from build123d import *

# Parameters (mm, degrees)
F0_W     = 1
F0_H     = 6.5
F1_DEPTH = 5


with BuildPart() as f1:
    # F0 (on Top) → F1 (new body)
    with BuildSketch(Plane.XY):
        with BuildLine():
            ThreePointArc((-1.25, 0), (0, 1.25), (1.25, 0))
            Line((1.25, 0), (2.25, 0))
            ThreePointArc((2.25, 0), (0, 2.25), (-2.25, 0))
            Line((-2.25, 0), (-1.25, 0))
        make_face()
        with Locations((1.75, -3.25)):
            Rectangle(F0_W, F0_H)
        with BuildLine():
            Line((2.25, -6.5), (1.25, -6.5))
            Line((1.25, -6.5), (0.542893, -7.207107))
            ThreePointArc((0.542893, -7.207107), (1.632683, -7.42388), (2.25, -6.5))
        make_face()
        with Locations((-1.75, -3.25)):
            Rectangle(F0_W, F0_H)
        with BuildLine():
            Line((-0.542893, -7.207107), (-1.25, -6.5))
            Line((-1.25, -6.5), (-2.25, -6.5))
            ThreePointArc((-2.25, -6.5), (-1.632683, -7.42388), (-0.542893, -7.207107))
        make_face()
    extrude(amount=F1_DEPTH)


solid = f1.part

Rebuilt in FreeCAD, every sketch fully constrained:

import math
import FreeCAD as App
import Part
import Sketcher
Q = App.Units.Quantity

doc = App.newDocument("Part")
body = doc.addObject("PartDesign::Body", "Body")

# Sketch on XY plane
sketch1 = body.newObject("Sketcher::SketchObject", "Sketch")
sketch1.AttachmentSupport = (doc.getObject("XY_Plane"), [""])
sketch1.MapMode = "FlatFace"
sketch1.addGeometry([
    Part.ArcOfCircle(Part.Circle(App.Vector(0, 0, 0), App.Vector(0, 0, 1), 1.2), math.radians(0), math.radians(180)),  # 0
    Part.LineSegment(App.Vector(1.2, 0, 0), App.Vector(1.2, -6.5, 0)),  # 1
    Part.LineSegment(App.Vector(1.2, -6.5, 0), App.Vector(0.5, -7.2, 0)),  # 2
    Part.ArcOfCircle(Part.Circle(App.Vector(1.2, -6.5, 0), App.Vector(0, 0, 1), 1), math.radians(-135), math.radians(0)),  # 3
    Part.LineSegment(App.Vector(2.2, -6.5, 0), App.Vector(2.2, 0, 0)),  # 4
    Part.ArcOfCircle(Part.Circle(App.Vector(0, 0, 0), App.Vector(0, 0, 1), 2.2), math.radians(0), math.radians(180)),  # 5
    Part.LineSegment(App.Vector(-2.2, 0, 0), App.Vector(-2.2, -6.5, 0)),  # 6
    Part.ArcOfCircle(Part.Circle(App.Vector(-1.2, -6.5, 0), App.Vector(0, 0, 1), 1), math.radians(180), math.radians(315)),  # 7
    Part.LineSegment(App.Vector(-0.5, -7.2, 0), App.Vector(-1.2, -6.5, 0)),  # 8
    Part.LineSegment(App.Vector(-1.2, -6.5, 0), App.Vector(-1.2, 0, 0)),  # 9
], False)
sketch1.addConstraint([
    Sketcher.Constraint("Tangent", 0, 1, 1, 1),
    Sketcher.Constraint("Coincident", 1, 2, 2, 1),
    Sketcher.Constraint("Coincident", 2, 2, 3, 1),
    Sketcher.Constraint("Tangent", 3, 2, 4, 1),
    Sketcher.Constraint("Tangent", 4, 2, 5, 1),
    Sketcher.Constraint("Tangent", 5, 2, 6, 1),
    Sketcher.Constraint("Tangent", 6, 2, 7, 1),
    Sketcher.Constraint("Coincident", 7, 2, 8, 1),
    Sketcher.Constraint("Coincident", 8, 2, 9, 1),
    Sketcher.Constraint("Tangent", 9, 2, 0, 2),
    Sketcher.Constraint("Vertical", 1),
    Sketcher.Constraint("Vertical", 4),
    Sketcher.Constraint("Vertical", 6),
    Sketcher.Constraint("Vertical", 9),
    Sketcher.Constraint("Coincident", 0, 3, -1, 1),
    Sketcher.Constraint("Coincident", 5, 3, -1, 1),
    Sketcher.Constraint("Coincident", 1, 2, 3, 3),
    Sketcher.Constraint("Coincident", 8, 2, 7, 3),
    Sketcher.Constraint("Symmetric", 2, 2, 7, 2, -2),
    Sketcher.Constraint("Perpendicular", 2, 8),
    Sketcher.Constraint("Radius", 3, Q("1 mm")),
    Sketcher.Constraint("Radius", 0, Q("1.25 mm")),
    Sketcher.Constraint("DistanceY", 1, 2, 1, 1, Q("6.5 mm")),
])
pad1 = body.newObject("PartDesign::Pad", "Pad")
pad1.Profile = sketch1
pad1.Length = 5

doc.recompute()
